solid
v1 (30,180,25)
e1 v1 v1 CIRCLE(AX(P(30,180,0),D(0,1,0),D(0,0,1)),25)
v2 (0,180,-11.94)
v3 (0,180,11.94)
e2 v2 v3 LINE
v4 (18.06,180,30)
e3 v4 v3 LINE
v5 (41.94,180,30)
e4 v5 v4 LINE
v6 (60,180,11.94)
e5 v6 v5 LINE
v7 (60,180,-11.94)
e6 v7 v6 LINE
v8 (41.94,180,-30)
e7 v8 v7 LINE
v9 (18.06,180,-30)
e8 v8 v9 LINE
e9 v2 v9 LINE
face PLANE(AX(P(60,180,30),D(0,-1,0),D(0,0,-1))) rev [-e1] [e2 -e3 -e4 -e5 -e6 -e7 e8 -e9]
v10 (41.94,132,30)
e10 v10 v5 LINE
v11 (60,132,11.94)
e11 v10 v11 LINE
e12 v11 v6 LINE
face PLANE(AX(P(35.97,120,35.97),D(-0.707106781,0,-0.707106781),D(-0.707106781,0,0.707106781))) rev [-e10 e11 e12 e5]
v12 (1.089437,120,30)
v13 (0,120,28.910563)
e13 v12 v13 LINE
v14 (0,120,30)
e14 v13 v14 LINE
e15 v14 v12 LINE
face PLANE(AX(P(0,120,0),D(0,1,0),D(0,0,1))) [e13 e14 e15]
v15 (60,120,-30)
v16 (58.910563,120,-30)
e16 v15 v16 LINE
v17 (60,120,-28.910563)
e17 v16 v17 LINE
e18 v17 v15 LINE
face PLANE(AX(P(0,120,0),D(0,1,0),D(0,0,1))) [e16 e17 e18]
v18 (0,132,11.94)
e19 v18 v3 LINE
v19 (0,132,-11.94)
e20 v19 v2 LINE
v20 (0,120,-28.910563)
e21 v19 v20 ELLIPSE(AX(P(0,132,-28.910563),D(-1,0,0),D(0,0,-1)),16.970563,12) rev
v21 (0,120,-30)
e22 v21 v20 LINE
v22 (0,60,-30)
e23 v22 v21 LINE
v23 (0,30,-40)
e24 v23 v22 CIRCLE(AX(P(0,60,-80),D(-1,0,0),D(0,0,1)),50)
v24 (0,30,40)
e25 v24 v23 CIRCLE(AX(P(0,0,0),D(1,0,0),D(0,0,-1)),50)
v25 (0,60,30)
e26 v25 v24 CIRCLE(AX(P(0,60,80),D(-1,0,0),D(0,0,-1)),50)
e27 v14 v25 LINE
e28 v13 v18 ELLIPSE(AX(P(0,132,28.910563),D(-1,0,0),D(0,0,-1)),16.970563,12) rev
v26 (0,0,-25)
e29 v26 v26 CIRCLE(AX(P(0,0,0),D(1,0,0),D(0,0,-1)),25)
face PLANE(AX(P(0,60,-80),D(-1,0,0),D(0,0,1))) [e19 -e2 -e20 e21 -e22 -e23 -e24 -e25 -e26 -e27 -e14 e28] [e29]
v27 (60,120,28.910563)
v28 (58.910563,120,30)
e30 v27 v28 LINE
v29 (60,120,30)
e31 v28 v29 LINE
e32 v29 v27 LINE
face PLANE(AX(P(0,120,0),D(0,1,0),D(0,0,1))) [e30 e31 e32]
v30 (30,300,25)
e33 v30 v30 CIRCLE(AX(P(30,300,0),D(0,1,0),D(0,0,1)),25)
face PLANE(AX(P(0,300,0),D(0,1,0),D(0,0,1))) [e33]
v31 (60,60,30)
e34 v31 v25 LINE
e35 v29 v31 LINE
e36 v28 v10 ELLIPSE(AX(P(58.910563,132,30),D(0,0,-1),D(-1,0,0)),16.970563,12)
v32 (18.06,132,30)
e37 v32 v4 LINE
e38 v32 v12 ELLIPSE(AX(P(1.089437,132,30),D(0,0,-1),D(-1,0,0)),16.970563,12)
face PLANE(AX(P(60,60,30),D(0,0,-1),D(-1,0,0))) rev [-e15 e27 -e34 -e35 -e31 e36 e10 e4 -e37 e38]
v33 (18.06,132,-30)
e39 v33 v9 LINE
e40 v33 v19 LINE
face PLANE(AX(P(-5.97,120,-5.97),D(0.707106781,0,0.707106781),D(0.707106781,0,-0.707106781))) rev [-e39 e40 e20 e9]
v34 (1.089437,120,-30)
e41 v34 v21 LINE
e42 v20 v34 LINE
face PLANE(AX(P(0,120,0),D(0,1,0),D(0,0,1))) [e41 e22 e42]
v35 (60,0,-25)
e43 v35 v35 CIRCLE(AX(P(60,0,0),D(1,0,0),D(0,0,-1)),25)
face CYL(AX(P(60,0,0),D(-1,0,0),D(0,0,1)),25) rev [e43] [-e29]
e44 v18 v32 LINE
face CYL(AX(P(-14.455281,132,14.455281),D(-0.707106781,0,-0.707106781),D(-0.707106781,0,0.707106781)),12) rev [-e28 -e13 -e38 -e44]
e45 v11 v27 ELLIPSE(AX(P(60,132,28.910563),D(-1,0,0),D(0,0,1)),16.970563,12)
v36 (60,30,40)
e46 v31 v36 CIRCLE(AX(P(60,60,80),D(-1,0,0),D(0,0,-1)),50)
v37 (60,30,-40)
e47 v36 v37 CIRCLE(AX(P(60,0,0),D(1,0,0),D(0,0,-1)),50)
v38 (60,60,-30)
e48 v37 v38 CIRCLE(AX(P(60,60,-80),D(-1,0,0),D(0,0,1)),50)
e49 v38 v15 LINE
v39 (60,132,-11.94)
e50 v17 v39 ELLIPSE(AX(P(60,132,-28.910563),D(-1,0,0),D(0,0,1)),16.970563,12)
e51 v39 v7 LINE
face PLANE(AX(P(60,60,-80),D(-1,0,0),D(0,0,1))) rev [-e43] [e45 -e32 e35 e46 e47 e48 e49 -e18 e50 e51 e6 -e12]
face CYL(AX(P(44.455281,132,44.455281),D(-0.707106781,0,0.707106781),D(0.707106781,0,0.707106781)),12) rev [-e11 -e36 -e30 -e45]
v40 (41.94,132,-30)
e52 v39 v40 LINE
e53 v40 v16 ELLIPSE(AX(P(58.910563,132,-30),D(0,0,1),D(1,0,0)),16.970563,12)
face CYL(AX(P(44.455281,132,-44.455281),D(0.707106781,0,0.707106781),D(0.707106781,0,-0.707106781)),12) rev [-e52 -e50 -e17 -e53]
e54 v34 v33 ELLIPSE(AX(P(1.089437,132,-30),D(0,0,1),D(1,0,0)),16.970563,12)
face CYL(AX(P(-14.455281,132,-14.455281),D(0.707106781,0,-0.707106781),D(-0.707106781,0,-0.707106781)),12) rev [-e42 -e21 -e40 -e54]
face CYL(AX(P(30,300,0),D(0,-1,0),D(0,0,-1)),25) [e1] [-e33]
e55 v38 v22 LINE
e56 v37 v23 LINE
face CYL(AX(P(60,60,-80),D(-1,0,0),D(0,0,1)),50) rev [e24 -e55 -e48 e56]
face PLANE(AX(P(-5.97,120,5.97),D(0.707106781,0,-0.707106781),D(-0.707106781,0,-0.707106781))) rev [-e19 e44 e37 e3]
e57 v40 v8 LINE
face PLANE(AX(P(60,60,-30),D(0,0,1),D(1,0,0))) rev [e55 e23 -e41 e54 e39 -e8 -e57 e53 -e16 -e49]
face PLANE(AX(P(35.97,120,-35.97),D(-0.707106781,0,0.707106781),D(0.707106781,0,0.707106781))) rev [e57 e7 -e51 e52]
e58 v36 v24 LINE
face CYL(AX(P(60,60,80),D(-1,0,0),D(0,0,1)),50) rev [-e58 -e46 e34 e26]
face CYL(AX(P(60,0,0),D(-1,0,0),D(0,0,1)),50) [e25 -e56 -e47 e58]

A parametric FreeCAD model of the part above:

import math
import FreeCAD as App
import Part
import Sketcher


def edges_at(feature, points):
    """Names of the edges that pass closest to the given points."""
    edges = feature.Shape.Edges
    near = lambda p: min(range(len(edges)), key=lambda i: edges[i].distToShape(Part.Vertex(*p))[0])
    return sorted({f"Edge{near(p) + 1}" for p in points})

doc = App.newDocument("Part")
params = doc.addObject("Spreadsheet::Sheet", "Params")
for row, (alias, value) in enumerate([
    ("sketch1_diameter", "50 mm"),
    ("sketch1_radius", "50 mm"),
    ("sketch1_width", "120 mm"),
    ("sketch1_height", "60 mm"),
    ("pad1_length", "60 mm"),
    ("sketch2_width", "18.06 mm"),
    ("pocket1_length", "60 mm"),
    ("sketch3_diameter", "50 mm"),
    ("pad2_length", "120 mm"),
    ("fillet_radius", "12 mm"),
], start=1):
    params.set(f"A{row}", alias)
    params.set(f"B{row}", "=" + value)
    params.setAlias(f"B{row}", alias)

body = doc.addObject("PartDesign::Body", "Body")

sketch1 = doc.addObject("Sketcher::SketchObject", "Sketch")
body.addObject(sketch1)
sketch1.AttachmentSupport = (doc.YZ_Plane, [""])
sketch1.MapMode = "FlatFace"
sketch1.addGeometry([
    Part.LineSegment(App.Vector(180, 30, 0), App.Vector(60, 30, 0)),
    Part.ArcOfCircle(Part.Circle(App.Vector(60, 80, 0), App.Vector(0, 0, 1), 50), math.radians(-127), math.radians(-90)),
    Part.ArcOfCircle(Part.Circle(App.Vector(0, 0, 0), App.Vector(0, 0, 1), 50), math.radians(53), math.radians(307)),
    Part.ArcOfCircle(Part.Circle(App.Vector(60, -80, 0), App.Vector(0, 0, 1), 50), math.radians(90), math.radians(127)),
    Part.LineSegment(App.Vector(60, -30, 0), App.Vector(180, -30, 0)),
    Part.LineSegment(App.Vector(180, -30, 0), App.Vector(180, 30, 0)),
    Part.Circle(App.Vector(0, 0, 0), App.Vector(0, 0, 1), 25),
], False)
sketch1.addConstraint([
    Sketcher.Constraint("Tangent", 0, 2, 1, 2),
    Sketcher.Constraint("Tangent", 1, 1, 2, 1),
    Sketcher.Constraint("Tangent", 2, 2, 3, 2),
    Sketcher.Constraint("Tangent", 3, 1, 4, 1),
    Sketcher.Constraint("Coincident", 4, 2, 5, 1),
    Sketcher.Constraint("Coincident", 5, 2, 0, 1),
    Sketcher.Constraint("Horizontal", 0),
    Sketcher.Constraint("Horizontal", 4),
    Sketcher.Constraint("Vertical", 5),
    Sketcher.Constraint("Coincident", 2, 3, -1, 1),
    Sketcher.Constraint("Coincident", 6, 3, -1, 1),
    Sketcher.Constraint("Equal", 1, 2),
    Sketcher.Constraint("Equal", 2, 3),
    Sketcher.Constraint("Vertical", 1, 3, 3, 3),
    Sketcher.Constraint("Diameter", 6, 50.0),
    Sketcher.Constraint("Radius", 1, 50.0),
    Sketcher.Constraint("DistanceX", 0, 2, 0, 1, 120.0),
    Sketcher.Constraint("DistanceY", 5, 1, 5, 2, 60.0),
])
sketch1.setExpression("Constraints[14]", "Params.sketch1_diameter")
sketch1.setExpression("Constraints[15]", "Params.sketch1_radius")
sketch1.setExpression("Constraints[16]", "Params.sketch1_width")
sketch1.setExpression("Constraints[17]", "Params.sketch1_height")
pad1 = doc.addObject("PartDesign::Pad", "Pad")
body.addObject(pad1)
pad1.Profile = sketch1
pad1.setExpression("Length", "Params.pad1_length")

sketch2 = doc.addObject("Sketcher::SketchObject", "Sketch001")
body.addObject(sketch2)
sketch2.AttachmentSupport = (doc.XZ_Plane, [""])
sketch2.MapMode = "FlatFace"
sketch2.AttachmentOffset = App.Placement(App.Vector(0, 0, -180), App.Rotation())
sketch2.addGeometry([
    Part.LineSegment(App.Vector(60, 12, 0), App.Vector(42, 30, 0)),
    Part.LineSegment(App.Vector(42, 30, 0), App.Vector(60, 30, 0)),
    Part.LineSegment(App.Vector(60, 30, 0), App.Vector(60, 12, 0)),
    Part.LineSegment(App.Vector(0, 30, 0), App.Vector(18, 30, 0)),
    Part.LineSegment(App.Vector(18, 30, 0), App.Vector(0, 12, 0)),
    Part.LineSegment(App.Vector(0, 12, 0), App.Vector(0, 30, 0)),
    Part.LineSegment(App.Vector(0, -30, 0), App.Vector(0, -12, 0)),
    Part.LineSegment(App.Vector(0, -12, 0), App.Vector(18, -30, 0)),
    Part.LineSegment(App.Vector(18, -30, 0), App.Vector(0, -30, 0)),
    Part.LineSegment(App.Vector(42, -30, 0), App.Vector(60, -12, 0)),
    Part.LineSegment(App.Vector(60, -12, 0), App.Vector(60, -30, 0)),
    Part.LineSegment(App.Vector(60, -30, 0), App.Vector(42, -30, 0)),
], False)
sketch2.addConstraint([
    Sketcher.Constraint("Coincident", 0, 2, 1, 1),
    Sketcher.Constraint("Coincident", 1, 2, 2, 1),
    Sketcher.Constraint("Coincident", 2, 2, 0, 1),
    Sketcher.Constraint("Coincident", 3, 2, 4, 1),
    Sketcher.Constraint("Coincident", 4, 2, 5, 1),
    Sketcher.Constraint("Coincident", 5, 2, 3, 1),
    Sketcher.Constraint("Coincident", 6, 2, 7, 1),
    Sketcher.Constraint("Coincident", 7, 2, 8, 1),
    Sketcher.Constraint("Coincident", 8, 2, 6, 1),
    Sketcher.Constraint("Coincident", 9, 2, 10, 1),
    Sketcher.Constraint("Coincident", 10, 2, 11, 1),
    Sketcher.Constraint("Coincident", 11, 2, 9, 1),
    Sketcher.Constraint("Horizontal", 1),
    Sketcher.Constraint("Vertical", 2),
    Sketcher.Constraint("Horizontal", 3),
    Sketcher.Constraint("Vertical", 5),
    Sketcher.Constraint("Vertical", 6),
    Sketcher.Constraint("Horizontal", 8),
    Sketcher.Constraint("Vertical", 10),
    Sketcher.Constraint("Horizontal", 11),
    Sketcher.Constraint("Symmetric", 4, 2, 6, 2, -1, 1),
    Sketcher.Constraint("Symmetric", 3, 2, 7, 2, -1),
    Sketcher.Constraint("Symmetric", 2, 2, 9, 2, -1),
    Sketcher.Constraint("Symmetric", 0, 2, 11, 2, -1),
    Sketcher.Constraint("PointOnObject", 4, 2, -2),
    Sketcher.Constraint("Perpendicular", 0, 4),
    Sketcher.Constraint("Perpendicular", 4, 7),
    Sketcher.Constraint("Horizontal", 1, 2, 3, 2),
    Sketcher.Constraint("Horizontal", 2, 2, 4, 2),
    Sketcher.Constraint("DistanceY", -1, 1, 0, 2, 30.0),
    Sketcher.Constraint("DistanceX", -1, 1, 1, 2, 60.0),
    Sketcher.Constraint("DistanceX", 1, 1, 1, 2, 18.06),
])
sketch2.setExpression("Constraints[31]", "Params.sketch2_width")
pocket1 = doc.addObject("PartDesign::Pocket", "Pocket")
body.addObject(pocket1)
pocket1.Profile = sketch2
pocket1.setExpression("Length", "Params.pocket1_length")
pocket1.Reversed = True

sketch3 = doc.addObject("Sketcher::SketchObject", "Sketch002")
body.addObject(sketch3)
sketch3.AttachmentSupport = (doc.XZ_Plane, [""])
sketch3.MapMode = "FlatFace"
sketch3.AttachmentOffset = App.Placement(App.Vector(0, 0, -180), App.Rotation())
sketch3.addGeometry(Part.Circle(App.Vector(30, 0, 0), App.Vector(0, 0, 1), 25), False)
sketch3.addConstraint([
    Sketcher.Constraint("PointOnObject", 0, 3, -1),
    Sketcher.Constraint("Diameter", 0, 50.0),
    Sketcher.Constraint("DistanceX", -1, 1, 0, 3, 30.0),
])
sketch3.setExpression("Constraints[1]", "Params.sketch3_diameter")
pad2 = doc.addObject("PartDesign::Pad", "Pad001")
body.addObject(pad2)
pad2.Profile = sketch3
pad2.setExpression("Length", "Params.pad2_length")
pad2.Reversed = True
doc.recompute()

fillet = doc.addObject("PartDesign::Fillet", "Fillet")
body.addObject(fillet)
fillet.Base = (pad2, edges_at(pad2, [
    (50.97, 120, -20.97),
    (9.03, 120, -20.97),
    (9.03, 120, 20.97),
    (50.97, 120, 20.97),
]))
fillet.setExpression("Radius", "Params.fillet_radius")

doc.recompute()
